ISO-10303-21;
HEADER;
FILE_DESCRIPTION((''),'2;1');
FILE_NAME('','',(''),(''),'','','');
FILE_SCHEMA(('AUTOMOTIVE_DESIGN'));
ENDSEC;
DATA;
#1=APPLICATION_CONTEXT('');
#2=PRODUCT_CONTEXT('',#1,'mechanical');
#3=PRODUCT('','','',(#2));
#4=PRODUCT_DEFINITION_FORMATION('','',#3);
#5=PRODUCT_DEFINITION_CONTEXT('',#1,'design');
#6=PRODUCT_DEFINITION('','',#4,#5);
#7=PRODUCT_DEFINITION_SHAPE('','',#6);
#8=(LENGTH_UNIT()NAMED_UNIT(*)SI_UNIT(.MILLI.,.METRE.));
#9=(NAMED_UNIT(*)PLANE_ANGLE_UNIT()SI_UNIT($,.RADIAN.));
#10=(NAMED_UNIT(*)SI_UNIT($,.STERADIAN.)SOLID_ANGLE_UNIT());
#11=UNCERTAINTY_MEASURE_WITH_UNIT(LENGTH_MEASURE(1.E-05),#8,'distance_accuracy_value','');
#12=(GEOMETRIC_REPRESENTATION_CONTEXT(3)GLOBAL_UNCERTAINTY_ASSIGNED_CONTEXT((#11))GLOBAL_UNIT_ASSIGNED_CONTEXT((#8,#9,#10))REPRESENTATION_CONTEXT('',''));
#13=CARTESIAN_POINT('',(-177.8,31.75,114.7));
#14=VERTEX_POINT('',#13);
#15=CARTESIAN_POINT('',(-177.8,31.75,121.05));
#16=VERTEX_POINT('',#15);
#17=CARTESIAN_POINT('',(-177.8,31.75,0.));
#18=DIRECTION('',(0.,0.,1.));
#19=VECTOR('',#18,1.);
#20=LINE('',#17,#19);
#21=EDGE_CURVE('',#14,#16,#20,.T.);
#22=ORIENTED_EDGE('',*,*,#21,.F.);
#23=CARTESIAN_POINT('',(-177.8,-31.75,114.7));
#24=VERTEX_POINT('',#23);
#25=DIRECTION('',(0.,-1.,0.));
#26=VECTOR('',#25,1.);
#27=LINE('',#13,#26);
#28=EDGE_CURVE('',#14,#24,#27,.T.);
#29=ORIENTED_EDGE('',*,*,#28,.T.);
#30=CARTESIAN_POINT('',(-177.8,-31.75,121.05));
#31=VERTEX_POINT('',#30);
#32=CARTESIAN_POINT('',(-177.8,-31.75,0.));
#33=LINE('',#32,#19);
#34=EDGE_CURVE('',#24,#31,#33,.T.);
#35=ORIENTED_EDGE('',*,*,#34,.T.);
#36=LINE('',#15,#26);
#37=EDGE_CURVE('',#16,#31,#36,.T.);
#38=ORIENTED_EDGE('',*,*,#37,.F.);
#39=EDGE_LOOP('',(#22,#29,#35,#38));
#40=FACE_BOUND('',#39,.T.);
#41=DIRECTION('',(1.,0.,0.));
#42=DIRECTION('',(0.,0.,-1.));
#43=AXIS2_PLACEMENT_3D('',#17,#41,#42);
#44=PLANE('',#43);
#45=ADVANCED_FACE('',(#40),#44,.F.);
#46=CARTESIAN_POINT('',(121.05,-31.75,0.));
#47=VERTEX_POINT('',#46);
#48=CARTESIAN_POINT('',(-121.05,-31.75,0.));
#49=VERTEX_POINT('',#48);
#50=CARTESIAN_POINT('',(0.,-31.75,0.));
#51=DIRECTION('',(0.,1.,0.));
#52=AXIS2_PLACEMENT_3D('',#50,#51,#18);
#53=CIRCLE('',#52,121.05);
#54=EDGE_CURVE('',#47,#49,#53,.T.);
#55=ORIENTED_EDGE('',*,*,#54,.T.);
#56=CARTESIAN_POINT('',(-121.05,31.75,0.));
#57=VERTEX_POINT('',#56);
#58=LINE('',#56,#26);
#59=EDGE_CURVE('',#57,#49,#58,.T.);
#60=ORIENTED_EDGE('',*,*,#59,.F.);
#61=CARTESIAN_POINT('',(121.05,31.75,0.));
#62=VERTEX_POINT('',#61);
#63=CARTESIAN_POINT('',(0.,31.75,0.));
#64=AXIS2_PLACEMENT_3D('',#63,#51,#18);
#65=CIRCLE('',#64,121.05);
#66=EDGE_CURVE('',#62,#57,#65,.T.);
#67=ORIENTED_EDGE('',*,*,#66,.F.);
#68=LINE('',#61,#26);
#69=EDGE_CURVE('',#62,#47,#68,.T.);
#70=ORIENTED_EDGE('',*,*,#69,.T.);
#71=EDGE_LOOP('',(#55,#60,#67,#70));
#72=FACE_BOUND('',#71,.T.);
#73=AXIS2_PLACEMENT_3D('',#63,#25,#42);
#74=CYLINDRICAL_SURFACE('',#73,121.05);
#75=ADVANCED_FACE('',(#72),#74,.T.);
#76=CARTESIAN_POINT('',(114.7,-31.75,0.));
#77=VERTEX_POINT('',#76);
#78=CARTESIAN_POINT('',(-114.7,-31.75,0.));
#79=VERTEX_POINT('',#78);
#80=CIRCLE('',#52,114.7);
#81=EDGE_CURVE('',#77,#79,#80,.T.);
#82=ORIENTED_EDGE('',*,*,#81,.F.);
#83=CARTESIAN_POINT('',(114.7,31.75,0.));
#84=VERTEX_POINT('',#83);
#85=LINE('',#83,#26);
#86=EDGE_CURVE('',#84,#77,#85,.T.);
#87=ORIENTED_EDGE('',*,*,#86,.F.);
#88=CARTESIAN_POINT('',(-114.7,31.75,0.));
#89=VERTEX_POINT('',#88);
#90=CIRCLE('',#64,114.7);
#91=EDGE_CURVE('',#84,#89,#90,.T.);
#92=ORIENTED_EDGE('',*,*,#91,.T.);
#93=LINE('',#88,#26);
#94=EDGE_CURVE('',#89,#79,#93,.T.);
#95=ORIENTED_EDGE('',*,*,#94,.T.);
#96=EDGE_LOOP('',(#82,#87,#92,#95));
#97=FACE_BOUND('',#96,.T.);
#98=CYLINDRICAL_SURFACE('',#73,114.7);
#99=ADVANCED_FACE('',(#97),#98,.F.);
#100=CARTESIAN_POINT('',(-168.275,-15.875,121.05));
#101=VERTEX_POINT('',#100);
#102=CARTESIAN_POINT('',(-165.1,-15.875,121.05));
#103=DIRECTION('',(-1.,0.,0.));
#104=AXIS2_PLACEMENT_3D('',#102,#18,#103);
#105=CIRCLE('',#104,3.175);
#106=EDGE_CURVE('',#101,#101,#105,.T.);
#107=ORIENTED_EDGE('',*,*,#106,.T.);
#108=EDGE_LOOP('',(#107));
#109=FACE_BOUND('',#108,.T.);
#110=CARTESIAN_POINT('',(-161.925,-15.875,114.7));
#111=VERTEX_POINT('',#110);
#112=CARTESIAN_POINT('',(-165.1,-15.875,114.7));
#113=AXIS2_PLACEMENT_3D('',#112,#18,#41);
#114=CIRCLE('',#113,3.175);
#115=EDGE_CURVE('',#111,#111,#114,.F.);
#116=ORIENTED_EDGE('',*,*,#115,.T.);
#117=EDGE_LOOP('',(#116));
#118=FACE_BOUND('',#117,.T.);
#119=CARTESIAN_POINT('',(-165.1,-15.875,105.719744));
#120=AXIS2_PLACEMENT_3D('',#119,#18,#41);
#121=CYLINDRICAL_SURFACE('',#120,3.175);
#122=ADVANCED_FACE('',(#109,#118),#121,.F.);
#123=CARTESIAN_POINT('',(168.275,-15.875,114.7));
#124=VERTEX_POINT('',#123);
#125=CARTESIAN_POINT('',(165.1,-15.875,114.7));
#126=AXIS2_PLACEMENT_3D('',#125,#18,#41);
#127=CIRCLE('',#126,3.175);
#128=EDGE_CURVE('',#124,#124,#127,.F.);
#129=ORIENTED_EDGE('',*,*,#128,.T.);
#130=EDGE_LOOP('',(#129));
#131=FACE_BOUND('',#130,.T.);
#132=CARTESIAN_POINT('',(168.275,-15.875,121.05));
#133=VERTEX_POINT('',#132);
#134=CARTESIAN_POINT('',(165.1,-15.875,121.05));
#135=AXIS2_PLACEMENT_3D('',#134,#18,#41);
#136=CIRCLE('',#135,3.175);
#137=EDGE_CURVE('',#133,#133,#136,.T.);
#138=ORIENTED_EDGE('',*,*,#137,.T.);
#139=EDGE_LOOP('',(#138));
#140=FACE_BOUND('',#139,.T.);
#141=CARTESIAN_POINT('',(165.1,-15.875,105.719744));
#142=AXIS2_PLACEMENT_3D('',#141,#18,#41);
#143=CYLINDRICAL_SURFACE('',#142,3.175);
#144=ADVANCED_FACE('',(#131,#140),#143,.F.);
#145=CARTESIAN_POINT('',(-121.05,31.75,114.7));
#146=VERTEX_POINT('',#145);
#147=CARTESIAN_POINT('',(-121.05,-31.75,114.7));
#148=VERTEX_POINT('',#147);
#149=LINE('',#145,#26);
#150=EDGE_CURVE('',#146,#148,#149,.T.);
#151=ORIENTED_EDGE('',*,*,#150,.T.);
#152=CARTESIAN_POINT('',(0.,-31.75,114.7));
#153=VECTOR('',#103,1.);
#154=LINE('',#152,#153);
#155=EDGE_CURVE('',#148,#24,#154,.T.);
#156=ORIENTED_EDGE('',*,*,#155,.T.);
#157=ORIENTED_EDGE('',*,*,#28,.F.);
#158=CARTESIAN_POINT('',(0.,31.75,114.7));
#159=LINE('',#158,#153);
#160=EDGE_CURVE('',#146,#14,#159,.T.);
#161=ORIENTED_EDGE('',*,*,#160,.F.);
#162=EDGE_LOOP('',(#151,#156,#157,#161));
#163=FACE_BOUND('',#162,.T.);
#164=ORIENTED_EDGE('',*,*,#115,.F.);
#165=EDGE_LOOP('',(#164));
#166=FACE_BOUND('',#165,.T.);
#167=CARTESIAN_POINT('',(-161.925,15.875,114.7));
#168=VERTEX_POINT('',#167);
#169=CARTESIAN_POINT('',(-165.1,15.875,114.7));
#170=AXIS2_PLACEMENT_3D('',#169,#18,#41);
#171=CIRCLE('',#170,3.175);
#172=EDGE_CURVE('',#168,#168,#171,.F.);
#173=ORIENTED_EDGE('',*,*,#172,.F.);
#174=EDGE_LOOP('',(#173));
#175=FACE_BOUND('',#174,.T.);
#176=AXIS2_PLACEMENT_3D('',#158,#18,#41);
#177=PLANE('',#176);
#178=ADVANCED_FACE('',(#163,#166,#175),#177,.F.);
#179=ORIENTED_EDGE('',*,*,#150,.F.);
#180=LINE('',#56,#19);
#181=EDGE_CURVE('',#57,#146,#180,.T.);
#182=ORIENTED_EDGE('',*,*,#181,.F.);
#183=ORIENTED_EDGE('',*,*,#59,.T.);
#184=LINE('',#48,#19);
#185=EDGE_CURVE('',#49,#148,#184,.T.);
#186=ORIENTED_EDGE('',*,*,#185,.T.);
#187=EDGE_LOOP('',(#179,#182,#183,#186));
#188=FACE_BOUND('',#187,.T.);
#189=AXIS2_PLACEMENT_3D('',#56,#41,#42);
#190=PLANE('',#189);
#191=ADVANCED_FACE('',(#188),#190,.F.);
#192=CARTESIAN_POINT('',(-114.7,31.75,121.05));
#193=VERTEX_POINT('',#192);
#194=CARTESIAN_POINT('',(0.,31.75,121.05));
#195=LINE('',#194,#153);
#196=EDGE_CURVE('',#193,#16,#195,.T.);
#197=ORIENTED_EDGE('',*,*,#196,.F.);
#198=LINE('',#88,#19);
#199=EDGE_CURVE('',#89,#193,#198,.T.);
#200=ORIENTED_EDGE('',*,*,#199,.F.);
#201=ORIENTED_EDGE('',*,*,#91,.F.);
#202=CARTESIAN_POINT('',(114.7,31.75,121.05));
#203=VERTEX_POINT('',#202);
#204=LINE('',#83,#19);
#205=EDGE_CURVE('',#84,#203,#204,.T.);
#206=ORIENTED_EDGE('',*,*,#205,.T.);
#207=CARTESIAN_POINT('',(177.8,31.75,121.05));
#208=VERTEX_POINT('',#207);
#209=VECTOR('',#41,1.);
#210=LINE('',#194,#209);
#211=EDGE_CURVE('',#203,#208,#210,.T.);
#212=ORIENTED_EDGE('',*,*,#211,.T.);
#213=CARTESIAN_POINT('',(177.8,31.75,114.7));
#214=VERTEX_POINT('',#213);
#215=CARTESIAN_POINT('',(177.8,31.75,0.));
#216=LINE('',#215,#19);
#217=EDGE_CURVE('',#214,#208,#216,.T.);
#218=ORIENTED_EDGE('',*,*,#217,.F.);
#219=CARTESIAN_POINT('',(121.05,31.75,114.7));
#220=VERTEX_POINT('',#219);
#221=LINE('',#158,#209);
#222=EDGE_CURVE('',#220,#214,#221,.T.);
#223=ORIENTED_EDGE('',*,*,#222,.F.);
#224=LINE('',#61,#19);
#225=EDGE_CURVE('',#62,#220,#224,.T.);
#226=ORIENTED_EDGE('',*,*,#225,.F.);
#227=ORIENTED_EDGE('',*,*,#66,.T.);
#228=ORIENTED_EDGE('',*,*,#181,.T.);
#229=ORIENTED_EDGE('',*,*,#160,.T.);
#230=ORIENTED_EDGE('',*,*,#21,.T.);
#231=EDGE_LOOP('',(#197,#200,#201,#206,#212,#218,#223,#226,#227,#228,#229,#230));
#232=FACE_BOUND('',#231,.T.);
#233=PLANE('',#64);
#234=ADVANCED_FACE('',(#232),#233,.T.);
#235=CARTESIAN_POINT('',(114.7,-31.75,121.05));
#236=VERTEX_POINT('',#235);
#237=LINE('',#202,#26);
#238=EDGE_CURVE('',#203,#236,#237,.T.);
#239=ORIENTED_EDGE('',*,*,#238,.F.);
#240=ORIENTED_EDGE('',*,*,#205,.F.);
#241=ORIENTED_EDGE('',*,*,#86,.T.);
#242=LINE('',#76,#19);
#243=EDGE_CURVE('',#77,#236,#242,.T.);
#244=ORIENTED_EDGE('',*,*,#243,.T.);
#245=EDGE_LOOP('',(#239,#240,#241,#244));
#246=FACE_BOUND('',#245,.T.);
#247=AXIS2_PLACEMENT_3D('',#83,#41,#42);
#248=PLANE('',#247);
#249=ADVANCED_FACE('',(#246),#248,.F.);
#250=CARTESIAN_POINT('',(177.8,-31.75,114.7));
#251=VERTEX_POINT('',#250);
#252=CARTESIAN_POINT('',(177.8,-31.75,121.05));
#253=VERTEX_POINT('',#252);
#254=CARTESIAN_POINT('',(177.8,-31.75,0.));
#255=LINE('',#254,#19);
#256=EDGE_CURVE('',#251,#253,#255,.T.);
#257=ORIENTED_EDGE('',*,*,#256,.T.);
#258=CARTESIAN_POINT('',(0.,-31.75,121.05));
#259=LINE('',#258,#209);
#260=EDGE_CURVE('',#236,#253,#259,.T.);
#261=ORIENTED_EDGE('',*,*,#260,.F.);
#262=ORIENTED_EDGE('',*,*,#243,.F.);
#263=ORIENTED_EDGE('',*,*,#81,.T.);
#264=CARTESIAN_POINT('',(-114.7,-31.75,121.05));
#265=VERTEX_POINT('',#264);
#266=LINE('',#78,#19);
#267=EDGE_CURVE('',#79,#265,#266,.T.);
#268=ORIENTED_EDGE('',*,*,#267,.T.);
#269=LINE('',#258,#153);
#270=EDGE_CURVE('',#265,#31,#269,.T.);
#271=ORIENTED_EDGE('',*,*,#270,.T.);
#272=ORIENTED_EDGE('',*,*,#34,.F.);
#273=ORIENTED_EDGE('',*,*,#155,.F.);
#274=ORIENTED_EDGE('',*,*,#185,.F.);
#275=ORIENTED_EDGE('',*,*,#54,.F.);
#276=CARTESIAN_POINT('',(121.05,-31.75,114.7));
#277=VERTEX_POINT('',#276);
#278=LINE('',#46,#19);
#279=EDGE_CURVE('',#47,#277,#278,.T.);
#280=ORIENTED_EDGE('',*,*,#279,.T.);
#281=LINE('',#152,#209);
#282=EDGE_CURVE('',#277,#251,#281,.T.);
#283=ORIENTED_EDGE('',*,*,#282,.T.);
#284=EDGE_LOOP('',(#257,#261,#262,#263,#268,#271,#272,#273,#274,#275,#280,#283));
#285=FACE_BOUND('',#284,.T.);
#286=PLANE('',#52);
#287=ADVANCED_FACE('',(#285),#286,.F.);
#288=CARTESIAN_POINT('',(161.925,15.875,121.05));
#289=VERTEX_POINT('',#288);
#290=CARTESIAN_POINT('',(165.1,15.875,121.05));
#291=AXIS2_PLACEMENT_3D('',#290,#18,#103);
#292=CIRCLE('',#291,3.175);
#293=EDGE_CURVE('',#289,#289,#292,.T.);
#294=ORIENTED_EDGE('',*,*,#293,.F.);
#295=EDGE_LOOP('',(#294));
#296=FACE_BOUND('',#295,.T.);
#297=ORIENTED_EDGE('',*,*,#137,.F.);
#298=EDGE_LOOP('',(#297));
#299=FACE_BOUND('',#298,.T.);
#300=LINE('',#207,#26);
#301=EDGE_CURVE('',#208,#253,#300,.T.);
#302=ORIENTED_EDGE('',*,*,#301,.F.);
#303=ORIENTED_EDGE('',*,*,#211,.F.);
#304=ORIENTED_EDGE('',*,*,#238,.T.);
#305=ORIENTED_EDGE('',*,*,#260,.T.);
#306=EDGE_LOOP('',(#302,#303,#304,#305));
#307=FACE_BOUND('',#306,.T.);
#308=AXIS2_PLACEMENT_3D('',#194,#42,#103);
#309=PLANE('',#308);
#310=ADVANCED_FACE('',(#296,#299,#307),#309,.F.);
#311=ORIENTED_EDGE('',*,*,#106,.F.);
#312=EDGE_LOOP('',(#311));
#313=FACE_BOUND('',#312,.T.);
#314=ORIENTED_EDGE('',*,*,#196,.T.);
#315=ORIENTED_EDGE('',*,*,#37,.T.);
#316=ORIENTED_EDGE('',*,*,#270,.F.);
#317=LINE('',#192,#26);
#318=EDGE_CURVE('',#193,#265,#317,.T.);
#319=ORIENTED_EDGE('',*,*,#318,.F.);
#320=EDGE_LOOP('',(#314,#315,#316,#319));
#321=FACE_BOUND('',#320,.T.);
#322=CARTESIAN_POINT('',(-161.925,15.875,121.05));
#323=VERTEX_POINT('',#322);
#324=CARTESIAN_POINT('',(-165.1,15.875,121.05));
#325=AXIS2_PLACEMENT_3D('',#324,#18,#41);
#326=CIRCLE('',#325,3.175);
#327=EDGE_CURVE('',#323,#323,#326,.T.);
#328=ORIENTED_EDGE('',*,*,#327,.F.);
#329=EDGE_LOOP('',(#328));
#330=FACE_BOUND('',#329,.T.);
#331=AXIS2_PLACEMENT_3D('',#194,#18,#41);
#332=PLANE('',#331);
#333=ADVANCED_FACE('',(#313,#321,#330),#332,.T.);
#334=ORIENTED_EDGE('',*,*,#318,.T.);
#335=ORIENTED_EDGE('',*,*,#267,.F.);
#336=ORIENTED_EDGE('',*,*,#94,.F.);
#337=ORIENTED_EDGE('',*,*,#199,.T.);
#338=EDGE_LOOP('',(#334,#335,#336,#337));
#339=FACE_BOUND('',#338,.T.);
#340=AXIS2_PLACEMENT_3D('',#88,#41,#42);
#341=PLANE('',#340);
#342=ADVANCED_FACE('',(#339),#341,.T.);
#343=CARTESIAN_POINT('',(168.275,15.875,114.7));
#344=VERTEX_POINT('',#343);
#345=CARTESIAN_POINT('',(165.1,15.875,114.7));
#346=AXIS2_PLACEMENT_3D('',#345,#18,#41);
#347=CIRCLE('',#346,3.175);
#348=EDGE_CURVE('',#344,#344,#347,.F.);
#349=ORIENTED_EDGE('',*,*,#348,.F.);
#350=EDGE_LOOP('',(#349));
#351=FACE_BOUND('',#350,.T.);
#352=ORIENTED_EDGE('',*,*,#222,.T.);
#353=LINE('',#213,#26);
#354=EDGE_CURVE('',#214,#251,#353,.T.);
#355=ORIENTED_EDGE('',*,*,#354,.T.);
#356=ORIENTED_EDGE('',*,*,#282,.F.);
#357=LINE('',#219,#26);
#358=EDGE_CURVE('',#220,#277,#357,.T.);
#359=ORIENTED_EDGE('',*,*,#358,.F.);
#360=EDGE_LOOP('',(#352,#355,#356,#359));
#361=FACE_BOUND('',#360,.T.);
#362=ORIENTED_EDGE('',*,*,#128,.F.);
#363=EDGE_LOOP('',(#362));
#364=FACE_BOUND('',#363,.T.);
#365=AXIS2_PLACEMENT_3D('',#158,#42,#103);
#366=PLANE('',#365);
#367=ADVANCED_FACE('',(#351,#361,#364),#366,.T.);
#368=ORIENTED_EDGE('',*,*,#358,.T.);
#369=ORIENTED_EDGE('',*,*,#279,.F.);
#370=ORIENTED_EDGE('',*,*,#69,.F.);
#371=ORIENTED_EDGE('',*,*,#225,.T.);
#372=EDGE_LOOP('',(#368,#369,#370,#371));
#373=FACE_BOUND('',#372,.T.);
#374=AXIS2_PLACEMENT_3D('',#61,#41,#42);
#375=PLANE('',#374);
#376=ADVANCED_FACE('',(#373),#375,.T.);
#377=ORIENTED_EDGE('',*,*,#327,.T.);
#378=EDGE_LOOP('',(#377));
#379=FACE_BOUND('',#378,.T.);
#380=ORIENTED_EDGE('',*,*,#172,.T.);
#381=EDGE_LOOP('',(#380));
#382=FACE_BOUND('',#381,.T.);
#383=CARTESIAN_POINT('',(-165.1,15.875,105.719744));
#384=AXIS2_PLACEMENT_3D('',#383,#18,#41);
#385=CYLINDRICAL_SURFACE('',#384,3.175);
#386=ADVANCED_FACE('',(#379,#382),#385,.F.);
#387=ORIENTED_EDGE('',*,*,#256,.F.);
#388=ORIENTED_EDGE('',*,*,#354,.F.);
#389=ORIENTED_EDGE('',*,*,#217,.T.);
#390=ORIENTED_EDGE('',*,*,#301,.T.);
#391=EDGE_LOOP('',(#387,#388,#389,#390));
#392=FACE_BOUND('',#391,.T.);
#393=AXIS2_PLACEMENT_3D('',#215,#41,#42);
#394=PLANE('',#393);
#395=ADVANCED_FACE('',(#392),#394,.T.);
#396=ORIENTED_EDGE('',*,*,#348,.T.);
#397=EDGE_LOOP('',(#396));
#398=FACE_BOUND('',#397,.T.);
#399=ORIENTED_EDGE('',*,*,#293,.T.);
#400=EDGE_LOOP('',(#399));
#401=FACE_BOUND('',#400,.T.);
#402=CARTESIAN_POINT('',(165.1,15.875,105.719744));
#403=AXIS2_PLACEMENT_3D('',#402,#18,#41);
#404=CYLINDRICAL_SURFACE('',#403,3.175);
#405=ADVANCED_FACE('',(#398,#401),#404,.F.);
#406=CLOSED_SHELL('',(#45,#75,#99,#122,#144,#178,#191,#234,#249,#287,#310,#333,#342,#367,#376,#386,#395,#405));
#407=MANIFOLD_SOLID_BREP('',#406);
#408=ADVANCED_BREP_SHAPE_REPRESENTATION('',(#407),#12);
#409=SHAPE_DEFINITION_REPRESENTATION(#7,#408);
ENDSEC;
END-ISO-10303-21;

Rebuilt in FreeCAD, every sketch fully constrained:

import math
import FreeCAD as App
import Part
import Sketcher
Q = App.Units.Quantity

doc = App.newDocument("Part")
body = doc.addObject("PartDesign::Body", "Body")

# Sketch on XZ plane
sketch1 = body.newObject("Sketcher::SketchObject", "Sketch")
sketch1.AttachmentSupport = (doc.getObject("XZ_Plane"), [""])
sketch1.MapMode = "FlatFace"
sketch1.addGeometry(Part.LineSegment(App.Vector(-115, 121, 0), App.Vector(-115, 0, 0)), False)
sketch1.addGeometry(Part.ArcOfCircle(Part.Circle(App.Vector(0, 0, 0), App.Vector(0, 0, 1), 115), math.radians(180), math.radians(360)), False)
sketch1.addGeometry(Part.LineSegment(App.Vector(115, 0, 0), App.Vector(115, 121, 0)), False)
sketch1.addGeometry(Part.LineSegment(App.Vector(115, 121, 0), App.Vector(178, 121, 0)), False)
sketch1.addGeometry(Part.LineSegment(App.Vector(178, 121, 0), App.Vector(178, 115, 0)), False)
sketch1.addGeometry(Part.LineSegment(App.Vector(178, 115, 0), App.Vector(121, 115, 0)), False)
sketch1.addGeometry(Part.LineSegment(App.Vector(121, 115, 0), App.Vector(121, 0, 0)), False)
sketch1.addGeometry(Part.ArcOfCircle(Part.Circle(App.Vector(0, 0, 0), App.Vector(0, 0, 1), 121), math.radians(180), math.radians(360)), False)
sketch1.addGeometry(Part.LineSegment(App.Vector(-121, 0, 0), App.Vector(-121, 115, 0)), False)
sketch1.addGeometry(Part.LineSegment(App.Vector(-121, 115, 0), App.Vector(-178, 115, 0)), False)
sketch1.addGeometry(Part.LineSegment(App.Vector(-178, 115, 0), App.Vector(-178, 121, 0)), False)
sketch1.addGeometry(Part.LineSegment(App.Vector(-178, 121, 0), App.Vector(-115, 121, 0)), False)
sketch1.addConstraint(Sketcher.Constraint("Tangent", 0, 2, 1, 1))
sketch1.addConstraint(Sketcher.Constraint("Tangent", 1, 2, 2, 1))
sketch1.addConstraint(Sketcher.Constraint("Coincident", 2, 2, 3, 1))
sketch1.addConstraint(Sketcher.Constraint("Coincident", 3, 2, 4, 1))
sketch1.addConstraint(Sketcher.Constraint("Coincident", 4, 2, 5, 1))
sketch1.addConstraint(Sketcher.Constraint("Coincident", 5, 2, 6, 1))
sketch1.addConstraint(Sketcher.Constraint("Tangent", 6, 2, 7, 2))
sketch1.addConstraint(Sketcher.Constraint("Tangent", 7, 1, 8, 1))
sketch1.addConstraint(Sketcher.Constraint("Coincident", 8, 2, 9, 1))
sketch1.addConstraint(Sketcher.Constraint("Coincident", 9, 2, 10, 1))
sketch1.addConstraint(Sketcher.Constraint("Coincident", 10, 2, 11, 1))
sketch1.addConstraint(Sketcher.Constraint("Coincident", 11, 2, 0, 1))
sketch1.addConstraint(Sketcher.Constraint("Vertical", 0))
sketch1.addConstraint(Sketcher.Constraint("Vertical", 2))
sketch1.addConstraint(Sketcher.Constraint("Horizontal", 3))
sketch1.addConstraint(Sketcher.Constraint("Vertical", 4))
sketch1.addConstraint(Sketcher.Constraint("Horizontal", 5))
sketch1.addConstraint(Sketcher.Constraint("Vertical", 6))
sketch1.addConstraint(Sketcher.Constraint("Vertical", 8))
sketch1.addConstraint(Sketcher.Constraint("Horizontal", 9))
sketch1.addConstraint(Sketcher.Constraint("Vertical", 10))
sketch1.addConstraint(Sketcher.Constraint("Horizontal", 11))
sketch1.addConstraint(Sketcher.Constraint("Coincident", 1, 3, -1, 1))
sketch1.addConstraint(Sketcher.Constraint("Coincident", 7, 3, -1, 1))
sketch1.addConstraint(Sketcher.Constraint("Symmetric", 4, 2, 9, 2, -2))
sketch1.addConstraint(Sketcher.Constraint("Horizontal", 3, 2, 10, 2))
sketch1.addConstraint(Sketcher.Constraint("Radius", 1, Q("114.7 mm")))
sketch1.addConstraint(Sketcher.Constraint("Radius", 7, Q("121.05 mm")))
sketch1.addConstraint(Sketcher.Constraint("DistanceX", 3, 1, 3, 2, Q("63.1 mm")))
sketch1.addConstraint(Sketcher.Constraint("DistanceY", 6, 2, 6, 1, Q("114.7 mm")))
sketch1.addConstraint(Sketcher.Constraint("DistanceY", 0, 2, 0, 1, Q("121.05 mm")))
pad1 = body.newObject("PartDesign::Pad", "Pad")
pad1.Profile = sketch1
pad1.Length = 63.5
pad1.Midplane = True

# Sketch on XY plane
sketch2 = body.newObject("Sketcher::SketchObject", "Sketch001")
sketch2.AttachmentSupport = (doc.getObject("XY_Plane"), [""])
sketch2.MapMode = "FlatFace"
sketch2.AttachmentOffset = App.Placement(App.Vector(0, 0, 121.05), App.Rotation())
sketch2.addGeometry(Part.Circle(App.Vector(-165.1, 15.9, 0), App.Vector(0, 0, 1), 3.2), False)
sketch2.addGeometry(Part.Circle(App.Vector(-165.1, -15.9, 0), App.Vector(0, 0, 1), 3.2), False)
sketch2.addGeometry(Part.Circle(App.Vector(165.1, -15.9, 0), App.Vector(0, 0, 1), 3.2), False)
sketch2.addGeometry(Part.Circle(App.Vector(165.1, 15.9, 0), App.Vector(0, 0, 1), 3.2), False)
sketch2.addConstraint(Sketcher.Constraint("Equal", 0, 1))
sketch2.addConstraint(Sketcher.Constraint("Equal", 1, 2))
sketch2.addConstraint(Sketcher.Constraint("Equal", 2, 3))
sketch2.addConstraint(Sketcher.Constraint("Symmetric", 0, 3, 2, 3, -1, 1))
sketch2.addConstraint(Sketcher.Constraint("Symmetric", 1, 3, 3, 3, -1, 1))
sketch2.addConstraint(Sketcher.Constraint("Symmetric", 1, 3, 2, 3, -2))
sketch2.addConstraint(Sketcher.Constraint("Diameter", 0, Q("6.35 mm")))
sketch2.addConstraint(Sketcher.Constraint("DistanceX", 0, 3, -1, 1, Q("165.1 mm")))
sketch2.addConstraint(Sketcher.Constraint("DistanceY", 1, 3, 0, 3, Q("31.75 mm")))
pocket1 = body.newObject("PartDesign::Pocket", "Pocket")
pocket1.Profile = sketch2
pocket1.Length = 6.35

doc.recompute()
